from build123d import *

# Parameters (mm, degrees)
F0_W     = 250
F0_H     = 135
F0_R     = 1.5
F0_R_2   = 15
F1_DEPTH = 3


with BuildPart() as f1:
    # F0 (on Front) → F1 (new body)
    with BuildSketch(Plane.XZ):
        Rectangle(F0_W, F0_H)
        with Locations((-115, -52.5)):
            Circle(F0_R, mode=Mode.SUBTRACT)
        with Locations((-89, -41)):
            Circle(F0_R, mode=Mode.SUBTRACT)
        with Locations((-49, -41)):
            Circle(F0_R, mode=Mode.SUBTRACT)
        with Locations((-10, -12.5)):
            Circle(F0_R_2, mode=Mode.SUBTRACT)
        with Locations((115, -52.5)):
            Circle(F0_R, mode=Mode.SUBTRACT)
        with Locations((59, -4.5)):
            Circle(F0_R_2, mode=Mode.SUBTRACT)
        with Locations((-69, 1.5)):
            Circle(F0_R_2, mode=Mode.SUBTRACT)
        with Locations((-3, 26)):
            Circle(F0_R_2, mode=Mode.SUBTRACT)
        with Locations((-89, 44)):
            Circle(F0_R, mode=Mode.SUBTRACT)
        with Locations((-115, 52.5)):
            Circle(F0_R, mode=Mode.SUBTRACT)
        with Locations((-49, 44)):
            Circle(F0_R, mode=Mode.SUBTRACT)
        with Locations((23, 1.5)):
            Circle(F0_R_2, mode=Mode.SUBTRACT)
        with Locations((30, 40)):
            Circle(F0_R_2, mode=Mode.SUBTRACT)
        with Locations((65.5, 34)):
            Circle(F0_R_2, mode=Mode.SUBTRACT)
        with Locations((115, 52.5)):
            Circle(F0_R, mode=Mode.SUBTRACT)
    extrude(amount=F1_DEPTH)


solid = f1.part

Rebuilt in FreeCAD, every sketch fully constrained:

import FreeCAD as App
import Part
import Sketcher
Q = App.Units.Quantity

doc = App.newDocument("Part")
params = doc.addObject("Spreadsheet::Sheet", "Params")
for row, (alias, value) in enumerate([
    ("sketch1_diameter", "3 mm"),
    ("sketch1_diameter2", "30 mm"),
    ("sketch1_width", "250 mm"),
    ("sketch1_height", "135 mm"),
    ("pad1_length", "3 mm"),
], start=1):
    params.set(f"A{row}", alias)
    params.set(f"B{row}", "=" + value)
    params.setAlias(f"B{row}", alias)

body = doc.addObject("PartDesign::Body", "Body")

# Sketch on XZ plane
sketch1 = doc.addObject("Sketcher::SketchObject", "Sketch")
body.addObject(sketch1)
sketch1.AttachmentSupport = (doc.XZ_Plane, [""])
sketch1.MapMode = "FlatFace"
sketch1.addGeometry([
    Part.LineSegment(App.Vector(-125, 67.5, 0), App.Vector(-125, -67.5, 0)),  # 0
    Part.LineSegment(App.Vector(-125, -67.5, 0), App.Vector(125, -67.5, 0)),  # 1
    Part.LineSegment(App.Vector(125, -67.5, 0), App.Vector(125, 67.5, 0)),  # 2
    Part.LineSegment(App.Vector(125, 67.5, 0), App.Vector(-125, 67.5, 0)),  # 3
    Part.Circle(App.Vector(-115, -52.5, 0), App.Vector(0, 0, 1), 1.5),  # 4
    Part.Circle(App.Vector(-89, -41, 0), App.Vector(0, 0, 1), 1.5),  # 5
    Part.Circle(App.Vector(-49, -41, 0), App.Vector(0, 0, 1), 1.5),  # 6
    Part.Circle(App.Vector(-10, -12.5, 0), App.Vector(0, 0, 1), 15),  # 7
    Part.Circle(App.Vector(115, -52.5, 0), App.Vector(0, 0, 1), 1.5),  # 8
    Part.Circle(App.Vector(59, -4.5, 0), App.Vector(0, 0, 1), 15),  # 9
    Part.Circle(App.Vector(-69, 1.5, 0), App.Vector(0, 0, 1), 15),  # 10
    Part.Circle(App.Vector(-3, 26, 0), App.Vector(0, 0, 1), 15),  # 11
    Part.Circle(App.Vector(-89, 44, 0), App.Vector(0, 0, 1), 1.5),  # 12
    Part.Circle(App.Vector(-115, 52.5, 0), App.Vector(0, 0, 1), 1.5),  # 13
    Part.Circle(App.Vector(-49, 44, 0), App.Vector(0, 0, 1), 1.5),  # 14
    Part.Circle(App.Vector(23, 1.5, 0), App.Vector(0, 0, 1), 15),  # 15
    Part.Circle(App.Vector(30, 40, 0), App.Vector(0, 0, 1), 15),  # 16
    Part.Circle(App.Vector(65.5, 34, 0), App.Vector(0, 0, 1), 15),  # 17
    Part.Circle(App.Vector(115, 52.5, 0), App.Vector(0, 0, 1), 1.5),  # 18
], False)
sketch1.addConstraint([
    Sketcher.Constraint("Coincident", 0, 2, 1, 1),
    Sketcher.Constraint("Coincident", 1, 2, 2, 1),
    Sketcher.Constraint("Coincident", 2, 2, 3, 1),
    Sketcher.Constraint("Coincident", 3, 2, 0, 1),
    Sketcher.Constraint("Vertical", 0),
    Sketcher.Constraint("Horizontal", 1),
    Sketcher.Constraint("Vertical", 2),
    Sketcher.Constraint("Horizontal", 3),
    Sketcher.Constraint("Equal", 4, 5),
    Sketcher.Constraint("Equal", 5, 6),
    Sketcher.Constraint("Equal", 6, 8),
    Sketcher.Constraint("Equal", 7, 9),
    Sketcher.Constraint("Equal", 9, 10),
    Sketcher.Constraint("Equal", 10, 11),
    Sketcher.Constraint("Equal", 8, 12),
    Sketcher.Constraint("Equal", 12, 13),
    Sketcher.Constraint("Equal", 13, 14),
    Sketcher.Constraint("Equal", 11, 15),
    Sketcher.Constraint("Equal", 15, 16),
    Sketcher.Constraint("Equal", 16, 17),
    Sketcher.Constraint("Equal", 14, 18),
    Sketcher.Constraint("Symmetric", 8, 3, 13, 3, -1, 1),
    Sketcher.Constraint("Symmetric", 4, 3, 18, 3, -1, 1),
    Sketcher.Constraint("Symmetric", 0, 2, 2, 2, -1, 1),
    Sketcher.Constraint("Symmetric", 4, 3, 8, 3, -2),
    Sketcher.Constraint("Horizontal", 5, 3, 6, 3),
    Sketcher.Constraint("Horizontal", 12, 3, 14, 3),
    Sketcher.Constraint("Horizontal", 10, 3, 15, 3),
    Sketcher.Constraint("Vertical", 5, 3, 12, 3),
    Sketcher.Constraint("Vertical", 6, 3, 14, 3),
    Sketcher.Constraint("Diameter", 4, Q("3 mm")),
    Sketcher.Constraint("Diameter", 7, Q("30 mm")),
    Sketcher.Constraint("DistanceX", 1, 1, 1, 2, Q("250 mm")),
    Sketcher.Constraint("DistanceY", 0, 2, 0, 1, Q("135 mm")),
    Sketcher.Constraint("DistanceX", 4, 3, -1, 1, Q("115 mm")),
    Sketcher.Constraint("DistanceX", 5, 3, -1, 1, Q("89 mm")),
    Sketcher.Constraint("DistanceY", 5, 3, -1, 1, Q("41 mm")),
    Sketcher.Constraint("DistanceX", 6, 3, -1, 1, Q("49 mm")),
    Sketcher.Constraint("DistanceX", 7, 3, -1, 1, Q("10 mm")),
    Sketcher.Constraint("DistanceX", -1, 1, 9, 3, Q("59 mm")),
    Sketcher.Constraint("DistanceX", 10, 3, -1, 1, Q("69 mm")),
    Sketcher.Constraint("DistanceX", 11, 3, -1, 1, Q("3 mm")),
    Sketcher.Constraint("DistanceY", -1, 1, 11, 3, Q("26 mm")),
    Sketcher.Constraint("DistanceY", -1, 1, 12, 3, Q("44 mm")),
    Sketcher.Constraint("DistanceX", -1, 1, 15, 3, Q("23 mm")),
    Sketcher.Constraint("DistanceX", -1, 1, 16, 3, Q("30 mm")),
    Sketcher.Constraint("DistanceY", -1, 1, 16, 3, Q("40 mm")),
    Sketcher.Constraint("DistanceY", -1, 1, 17, 3, Q("34 mm")),
    Sketcher.Constraint("DistanceY", 4, 3, 7, 3, Q("40 mm")),
    Sketcher.Constraint("DistanceY", 7, 3, 9, 3, Q("8 mm")),
    Sketcher.Constraint("DistanceY", 7, 3, 10, 3, Q("14 mm")),
    Sketcher.Constraint("DistanceY", 10, 3, 13, 3, Q("51 mm")),
    Sketcher.Constraint("DistanceX", -1, 1, 17, 3, Q("65.5 mm")),
])
sketch1.setExpression("Constraints[30]", "Params.sketch1_diameter")
sketch1.setExpression("Constraints[31]", "Params.sketch1_diameter2")
sketch1.setExpression("Constraints[32]", "Params.sketch1_width")
sketch1.setExpression("Constraints[33]", "Params.sketch1_height")
pad1 = doc.addObject("PartDesign::Pad", "Pad")
body.addObject(pad1)
pad1.Profile = sketch1
pad1.setExpression("Length", "Params.pad1_length")

doc.recompute()
